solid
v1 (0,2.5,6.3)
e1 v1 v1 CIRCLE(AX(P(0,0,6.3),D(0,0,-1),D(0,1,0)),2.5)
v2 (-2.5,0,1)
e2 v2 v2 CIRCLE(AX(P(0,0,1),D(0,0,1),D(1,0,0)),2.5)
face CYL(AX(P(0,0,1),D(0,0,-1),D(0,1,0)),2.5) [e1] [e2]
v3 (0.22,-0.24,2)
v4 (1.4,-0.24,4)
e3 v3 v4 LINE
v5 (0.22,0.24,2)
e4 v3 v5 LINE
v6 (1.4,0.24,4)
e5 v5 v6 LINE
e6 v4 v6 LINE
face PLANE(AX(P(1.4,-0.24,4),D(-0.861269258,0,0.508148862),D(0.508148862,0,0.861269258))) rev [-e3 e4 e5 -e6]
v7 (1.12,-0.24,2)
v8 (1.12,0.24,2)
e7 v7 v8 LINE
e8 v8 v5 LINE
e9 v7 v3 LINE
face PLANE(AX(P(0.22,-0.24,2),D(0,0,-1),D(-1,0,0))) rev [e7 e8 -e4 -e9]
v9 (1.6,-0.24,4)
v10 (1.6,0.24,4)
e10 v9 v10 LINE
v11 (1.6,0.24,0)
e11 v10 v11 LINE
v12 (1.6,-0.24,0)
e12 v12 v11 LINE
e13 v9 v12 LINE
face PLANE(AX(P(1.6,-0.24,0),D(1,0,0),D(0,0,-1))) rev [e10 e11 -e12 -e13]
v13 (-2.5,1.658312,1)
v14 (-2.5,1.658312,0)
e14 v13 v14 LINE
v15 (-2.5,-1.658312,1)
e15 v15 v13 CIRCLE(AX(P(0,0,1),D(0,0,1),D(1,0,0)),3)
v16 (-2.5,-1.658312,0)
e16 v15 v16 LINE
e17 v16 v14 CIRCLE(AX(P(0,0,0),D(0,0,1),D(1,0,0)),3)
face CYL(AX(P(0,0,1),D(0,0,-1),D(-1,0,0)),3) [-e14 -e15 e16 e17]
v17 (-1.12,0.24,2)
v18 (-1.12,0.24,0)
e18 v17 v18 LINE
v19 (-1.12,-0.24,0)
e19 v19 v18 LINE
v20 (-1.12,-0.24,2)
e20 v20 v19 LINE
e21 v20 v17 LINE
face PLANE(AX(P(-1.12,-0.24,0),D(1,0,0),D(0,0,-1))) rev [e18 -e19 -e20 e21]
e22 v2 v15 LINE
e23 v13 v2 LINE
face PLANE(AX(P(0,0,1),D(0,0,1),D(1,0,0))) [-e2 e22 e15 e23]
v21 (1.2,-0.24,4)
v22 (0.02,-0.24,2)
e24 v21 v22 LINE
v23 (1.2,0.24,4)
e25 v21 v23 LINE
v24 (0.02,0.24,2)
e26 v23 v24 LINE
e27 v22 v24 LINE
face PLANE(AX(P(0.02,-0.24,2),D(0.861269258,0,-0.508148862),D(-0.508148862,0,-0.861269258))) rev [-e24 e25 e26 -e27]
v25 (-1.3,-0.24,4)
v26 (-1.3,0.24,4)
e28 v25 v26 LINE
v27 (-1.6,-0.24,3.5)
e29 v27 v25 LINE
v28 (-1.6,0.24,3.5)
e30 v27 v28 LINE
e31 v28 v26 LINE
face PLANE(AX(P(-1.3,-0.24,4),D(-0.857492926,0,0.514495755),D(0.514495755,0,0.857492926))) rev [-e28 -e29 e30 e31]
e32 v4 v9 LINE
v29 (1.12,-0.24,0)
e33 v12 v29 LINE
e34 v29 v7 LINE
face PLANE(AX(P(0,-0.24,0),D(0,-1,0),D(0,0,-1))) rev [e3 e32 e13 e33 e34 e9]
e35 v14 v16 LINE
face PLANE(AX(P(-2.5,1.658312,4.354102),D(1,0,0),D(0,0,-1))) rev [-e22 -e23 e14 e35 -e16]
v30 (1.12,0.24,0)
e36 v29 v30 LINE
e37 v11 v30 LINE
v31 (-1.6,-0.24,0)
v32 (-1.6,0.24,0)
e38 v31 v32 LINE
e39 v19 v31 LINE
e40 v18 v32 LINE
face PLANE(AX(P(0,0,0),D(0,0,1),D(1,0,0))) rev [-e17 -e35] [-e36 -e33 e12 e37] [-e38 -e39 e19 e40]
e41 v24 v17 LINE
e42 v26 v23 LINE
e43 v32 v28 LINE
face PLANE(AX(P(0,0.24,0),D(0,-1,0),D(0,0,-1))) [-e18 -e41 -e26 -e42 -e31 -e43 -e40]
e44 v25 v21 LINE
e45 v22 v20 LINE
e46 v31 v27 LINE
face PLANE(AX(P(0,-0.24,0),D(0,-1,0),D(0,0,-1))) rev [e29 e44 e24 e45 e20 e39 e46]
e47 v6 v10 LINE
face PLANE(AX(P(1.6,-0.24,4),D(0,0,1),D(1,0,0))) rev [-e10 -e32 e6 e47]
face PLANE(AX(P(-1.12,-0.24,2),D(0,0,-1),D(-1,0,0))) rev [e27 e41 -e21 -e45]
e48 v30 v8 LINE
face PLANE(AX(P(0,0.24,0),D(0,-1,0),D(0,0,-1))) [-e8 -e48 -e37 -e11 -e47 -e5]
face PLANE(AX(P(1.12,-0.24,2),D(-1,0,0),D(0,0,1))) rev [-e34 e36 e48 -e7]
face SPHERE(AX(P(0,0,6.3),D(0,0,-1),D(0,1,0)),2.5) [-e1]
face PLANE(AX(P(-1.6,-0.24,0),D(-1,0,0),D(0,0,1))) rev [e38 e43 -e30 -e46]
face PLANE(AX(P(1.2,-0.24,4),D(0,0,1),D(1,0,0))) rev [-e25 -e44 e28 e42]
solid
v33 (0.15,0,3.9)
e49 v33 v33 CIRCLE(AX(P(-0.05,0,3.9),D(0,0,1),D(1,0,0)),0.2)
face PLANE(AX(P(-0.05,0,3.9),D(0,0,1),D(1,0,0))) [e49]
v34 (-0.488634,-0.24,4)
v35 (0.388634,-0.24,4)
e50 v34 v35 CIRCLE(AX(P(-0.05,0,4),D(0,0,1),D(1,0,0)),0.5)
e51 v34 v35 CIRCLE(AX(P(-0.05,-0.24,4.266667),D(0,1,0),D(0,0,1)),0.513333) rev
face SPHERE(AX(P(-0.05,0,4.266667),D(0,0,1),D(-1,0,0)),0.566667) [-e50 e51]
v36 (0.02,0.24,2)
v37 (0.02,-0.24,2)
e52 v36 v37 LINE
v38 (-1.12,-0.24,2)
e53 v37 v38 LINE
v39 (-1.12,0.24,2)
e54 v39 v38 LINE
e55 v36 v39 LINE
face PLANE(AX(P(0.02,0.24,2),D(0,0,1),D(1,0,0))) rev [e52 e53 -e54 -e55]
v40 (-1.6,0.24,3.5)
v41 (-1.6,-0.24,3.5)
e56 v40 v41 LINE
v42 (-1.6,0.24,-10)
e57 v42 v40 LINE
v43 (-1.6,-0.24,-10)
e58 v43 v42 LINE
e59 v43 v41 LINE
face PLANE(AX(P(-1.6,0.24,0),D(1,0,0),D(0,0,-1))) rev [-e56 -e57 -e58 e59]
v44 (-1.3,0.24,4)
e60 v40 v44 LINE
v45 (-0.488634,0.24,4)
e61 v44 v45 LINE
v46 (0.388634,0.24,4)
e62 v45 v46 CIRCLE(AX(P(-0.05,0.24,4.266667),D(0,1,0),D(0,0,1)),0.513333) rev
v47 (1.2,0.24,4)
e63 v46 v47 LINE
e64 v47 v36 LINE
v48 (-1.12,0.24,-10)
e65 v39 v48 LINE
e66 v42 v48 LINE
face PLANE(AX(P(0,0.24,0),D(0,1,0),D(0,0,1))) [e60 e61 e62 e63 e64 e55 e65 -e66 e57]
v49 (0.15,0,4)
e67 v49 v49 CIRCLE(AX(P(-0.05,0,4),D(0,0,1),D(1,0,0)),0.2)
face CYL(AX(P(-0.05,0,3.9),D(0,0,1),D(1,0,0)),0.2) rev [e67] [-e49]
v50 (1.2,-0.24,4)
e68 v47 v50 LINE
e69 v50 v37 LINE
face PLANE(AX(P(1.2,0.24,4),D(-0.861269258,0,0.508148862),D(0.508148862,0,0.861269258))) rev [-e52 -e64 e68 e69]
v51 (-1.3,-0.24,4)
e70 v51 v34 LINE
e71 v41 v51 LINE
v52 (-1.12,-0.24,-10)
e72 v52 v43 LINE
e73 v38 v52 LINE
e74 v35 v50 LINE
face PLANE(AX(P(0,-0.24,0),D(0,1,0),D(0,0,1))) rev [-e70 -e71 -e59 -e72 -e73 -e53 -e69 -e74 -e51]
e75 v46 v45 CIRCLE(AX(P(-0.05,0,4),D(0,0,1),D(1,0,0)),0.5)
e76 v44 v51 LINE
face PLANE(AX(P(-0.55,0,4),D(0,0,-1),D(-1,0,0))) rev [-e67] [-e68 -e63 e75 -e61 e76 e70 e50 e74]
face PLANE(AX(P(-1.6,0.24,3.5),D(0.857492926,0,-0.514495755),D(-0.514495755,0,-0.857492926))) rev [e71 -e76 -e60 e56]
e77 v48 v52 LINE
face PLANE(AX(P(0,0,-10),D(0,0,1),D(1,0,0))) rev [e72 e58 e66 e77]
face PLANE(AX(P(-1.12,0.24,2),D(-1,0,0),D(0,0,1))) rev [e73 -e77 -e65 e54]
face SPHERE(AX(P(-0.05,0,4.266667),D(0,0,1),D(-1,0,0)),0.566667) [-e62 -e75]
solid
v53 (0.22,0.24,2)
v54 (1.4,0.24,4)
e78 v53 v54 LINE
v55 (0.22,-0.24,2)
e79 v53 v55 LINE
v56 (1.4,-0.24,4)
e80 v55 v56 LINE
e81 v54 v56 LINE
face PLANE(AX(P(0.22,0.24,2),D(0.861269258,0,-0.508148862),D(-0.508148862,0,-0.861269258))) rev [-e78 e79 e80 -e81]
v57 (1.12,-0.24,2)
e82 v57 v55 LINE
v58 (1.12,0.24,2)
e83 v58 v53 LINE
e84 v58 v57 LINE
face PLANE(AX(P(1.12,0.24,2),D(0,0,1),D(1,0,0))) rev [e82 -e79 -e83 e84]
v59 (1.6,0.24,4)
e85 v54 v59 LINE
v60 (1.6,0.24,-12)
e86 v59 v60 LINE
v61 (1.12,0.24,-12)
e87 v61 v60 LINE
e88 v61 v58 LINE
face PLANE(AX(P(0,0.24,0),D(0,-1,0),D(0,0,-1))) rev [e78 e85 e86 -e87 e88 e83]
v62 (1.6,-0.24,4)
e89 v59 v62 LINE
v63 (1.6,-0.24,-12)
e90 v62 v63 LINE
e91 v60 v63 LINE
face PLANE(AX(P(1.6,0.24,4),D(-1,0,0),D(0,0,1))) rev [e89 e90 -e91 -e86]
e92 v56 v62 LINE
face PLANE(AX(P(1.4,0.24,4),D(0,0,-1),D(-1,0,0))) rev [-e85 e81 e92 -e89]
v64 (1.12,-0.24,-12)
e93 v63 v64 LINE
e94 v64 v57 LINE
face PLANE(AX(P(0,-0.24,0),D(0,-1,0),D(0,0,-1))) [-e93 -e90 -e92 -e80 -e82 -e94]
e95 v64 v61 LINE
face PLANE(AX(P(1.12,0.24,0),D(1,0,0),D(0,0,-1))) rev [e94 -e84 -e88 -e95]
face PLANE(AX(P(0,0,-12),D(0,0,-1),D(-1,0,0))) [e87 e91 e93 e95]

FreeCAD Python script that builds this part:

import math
import FreeCAD as App
import Part
import Sketcher

V = App.Vector


def add_polygon(sketch, points):
    """Adds a closed chain of lines whose ends are joined by coincident constraints."""
    first, n = sketch.GeometryCount, len(points)
    for a, b in zip(points, points[1:] + points[:1]):
        sketch.addGeometry(Part.LineSegment(App.Vector(*a, 0), App.Vector(*b, 0)), False)
    for i in range(n):
        sketch.addConstraint(Sketcher.Constraint("Coincident", first + i, 2, first + (i + 1) % n, 1))

doc = App.newDocument("Part")
body = doc.addObject("PartDesign::Body", "Body")

sketch1 = doc.addObject("Sketcher::SketchObject", "Sketch")
body.addObject(sketch1)
sketch1.AttachmentSupport = (doc.XY_Plane, [""])
sketch1.MapMode = "FlatFace"
sketch1.addGeometry(Part.Circle(V(0, 0, 0), V(0, 0, 1), 3), False)
sketch1.addConstraint([
    Sketcher.Constraint("Coincident", 0, 3, -1, 1),
    Sketcher.Constraint("Diameter", 0, 6.0),
])
pad1 = doc.addObject("PartDesign::Pad", "Pad")
body.addObject(pad1)
pad1.Profile = sketch1
pad1.Length = 1

sketch2 = doc.addObject("Sketcher::SketchObject", "Sketch001")
body.addObject(sketch2)
sketch2.AttachmentSupport = (doc.YZ_Plane, [""])
sketch2.MapMode = "FlatFace"
sketch2.addGeometry([
    Part.LineSegment(V(0, 8.8, 0), V(0, 1, 0)),
    Part.LineSegment(V(0, 1, 0), V(2.5, 1, 0)),
    Part.LineSegment(V(2.5, 1, 0), V(2.5, 6.3, 0)),
    Part.ArcOfCircle(Part.Circle(V(0, 6.3, 0), V(0, 0, 1), 2.5), math.radians(0), math.radians(90)),
], False)
sketch2.addConstraint([
    Sketcher.Constraint("Coincident", 0, 2, 1, 1),
    Sketcher.Constraint("Coincident", 1, 2, 2, 1),
    Sketcher.Constraint("Tangent", 2, 2, 3, 1),
    Sketcher.Constraint("Coincident", 3, 2, 0, 1),
    Sketcher.Constraint("Vertical", 0),
    Sketcher.Constraint("Horizontal", 1),
    Sketcher.Constraint("Vertical", 2),
    Sketcher.Constraint("PointOnObject", 3, 3, -2),
    Sketcher.Constraint("PointOnObject", 0, 2, -2),
    Sketcher.Constraint("Radius", 3, 2.5),
    Sketcher.Constraint("DistanceY", 0, 2, 0, 1, 7.8),
    Sketcher.Constraint("DistanceY", -1, 1, 0, 2, 1.0),
])
revolution = doc.addObject("PartDesign::Revolution", "Revolution")
body.addObject(revolution)
revolution.Profile = sketch2
revolution.ReferenceAxis = (sketch2, ["V_Axis"])
revolution.Angle = 360

sketch3 = doc.addObject("Sketcher::SketchObject", "Sketch002")
body.addObject(sketch3)
sketch3.AttachmentSupport = (doc.XY_Plane, [""])
sketch3.MapMode = "FlatFace"
sketch3.addGeometry([
    Part.LineSegment(V(-2.5, 1.658312, 0), V(-2.5, -1.658312, 0)),
    Part.ArcOfCircle(Part.Circle(V(0, 0, 0), V(0, 0, 1), 3), math.radians(146.44269), math.radians(213.55731)),
], False)
sketch3.addConstraint([
    Sketcher.Constraint("Coincident", 0, 1, 1, 1),
    Sketcher.Constraint("Coincident", 1, 2, 0, 2),
    Sketcher.Constraint("Vertical", 0),
    Sketcher.Constraint("Coincident", 1, 3, -1, 1),
    Sketcher.Constraint("Radius", 1, 3.0),
    Sketcher.Constraint("DistanceX", 0, 1, -1, 1, 2.5),
])
pocket1 = doc.addObject("PartDesign::Pocket", "Pocket")
body.addObject(pocket1)
pocket1.Profile = sketch3
pocket1.Length = 1
pocket1.Reversed = True

sketch4 = doc.addObject("Sketcher::SketchObject", "Sketch003")
body.addObject(sketch4)
sketch4.AttachmentSupport = (doc.XZ_Plane, [""])
sketch4.MapMode = "FlatFace"
add_polygon(sketch4, [(-1.6, 0), (-1.6, 3.5), (-1.3, 4), (1.2, 4), (0.02, 2), (-1.12, 2), (-1.12, 0)])
add_polygon(sketch4, [(1.6, 4), (1.6, 0), (1.12, 0), (1.12, 2), (0.22, 2), (1.4, 4)])
sketch4.addConstraint([
    Sketcher.Constraint("Vertical", 0),
    Sketcher.Constraint("Horizontal", 2),
    Sketcher.Constraint("Horizontal", 4),
    Sketcher.Constraint("Vertical", 5),
    Sketcher.Constraint("Horizontal", 6),
    Sketcher.Constraint("Vertical", 7),
    Sketcher.Constraint("Horizontal", 8),
    Sketcher.Constraint("Vertical", 9),
    Sketcher.Constraint("Horizontal", 10),
    Sketcher.Constraint("Horizontal", 12),
    Sketcher.Constraint("Symmetric", 6, 2, 7, 2, -1, 1),
    Sketcher.Constraint("Symmetric", 5, 2, 8, 2, -2),
    Sketcher.Constraint("Parallel", 3, 11),
    Sketcher.Constraint("Horizontal", 4, 2, 9, 2),
    Sketcher.Constraint("Horizontal", 2, 2, 11, 2),
    Sketcher.Constraint("DistanceY", 5, 2, 5, 1, 2.0),
    Sketcher.Constraint("DistanceY", 7, 2, 7, 1, 4.0),
    Sketcher.Constraint("DistanceX", 2, 1, 2, 2, 2.5),
    Sketcher.Constraint("DistanceX", 10, 2, 10, 1, 0.9),
    Sketcher.Constraint("DistanceX", 12, 1, 12, 2, 0.2),
    Sketcher.Constraint("DistanceY", 0, 1, 0, 2, 3.5),
    Sketcher.Constraint("DistanceX", 4, 2, 4, 1, 1.14),
    Sketcher.Constraint("DistanceX", 6, 2, 6, 1, 0.48),
    Sketcher.Constraint("DistanceX", 0, 2, -1, 1, 1.6),
])
pocket2 = doc.addObject("PartDesign::Pocket", "Pocket001")
body.addObject(pocket2)
pocket2.Profile = sketch4
pocket2.Length = 0.48
pocket2.Midplane = True
body2 = doc.addObject("PartDesign::Body", "Body001")

sketch5 = doc.addObject("Sketcher::SketchObject", "Sketch004")
body2.addObject(sketch5)
sketch5.AttachmentSupport = (doc.getObject("XY_Plane001"), [""])
sketch5.MapMode = "FlatFace"
add_polygon(sketch5, [(1.6, 0.24), (1.6, -0.24), (1.12, -0.24), (1.12, 0.24)])
sketch5.addConstraint([
    Sketcher.Constraint("Vertical", 0),
    Sketcher.Constraint("Horizontal", 1),
    Sketcher.Constraint("Vertical", 2),
    Sketcher.Constraint("Horizontal", 3),
    Sketcher.Constraint("Equal", 3, 0),
    Sketcher.Constraint("DistanceX", 1, 2, 1, 1, 0.48),
    Sketcher.Constraint("DistanceX", -1, 1, 0, 2, 1.6),
    Sketcher.Constraint("DistanceY", 0, 2, -1, 1, 0.24),
])
pad2 = doc.addObject("PartDesign::Pad", "Pad001")
body2.addObject(pad2)
pad2.Profile = sketch5
pad2.Length = 10
pad2.Reversed = True
body3 = doc.addObject("PartDesign::Body", "Body002")

sketch6 = doc.addObject("Sketcher::SketchObject", "Sketch005")
body3.addObject(sketch6)
sketch6.AttachmentSupport = (doc.getObject("XY_Plane002"), [""])
sketch6.MapMode = "FlatFace"
add_polygon(sketch6, [(-1.12, 0.24), (-1.12, -0.24), (-1.6, -0.24), (-1.6, 0.24)])
sketch6.addConstraint([
    Sketcher.Constraint("Vertical", 0),
    Sketcher.Constraint("Horizontal", 1),
    Sketcher.Constraint("Vertical", 2),
    Sketcher.Constraint("Horizontal", 3),
    Sketcher.Constraint("Equal", 3, 0),
    Sketcher.Constraint("DistanceX", 1, 2, 1, 1, 0.48),
    Sketcher.Constraint("DistanceX", 1, 2, -1, 1, 1.6),
    Sketcher.Constraint("DistanceY", 0, 2, -1, 1, 0.24),
])
pad3 = doc.addObject("PartDesign::Pad", "Pad002")
body3.addObject(pad3)
pad3.Profile = sketch6
pad3.Length = 10
pad3.Reversed = True
body4 = doc.addObject("PartDesign::Body", "Body003")

sketch7 = doc.addObject("Sketcher::SketchObject", "Sketch006")
body4.addObject(sketch7)
sketch7.AttachmentSupport = (doc.getObject("XY_Plane003"), [""])
sketch7.MapMode = "FlatFace"
sketch7.AttachmentOffset = App.Placement(V(0, 0, -10), App.Rotation())
add_polygon(sketch7, [(1.6, 0.24), (1.6, -0.24), (1.12, -0.24), (1.12, 0.24)])
sketch7.addConstraint([
    Sketcher.Constraint("Vertical", 0),
    Sketcher.Constraint("Horizontal", 1),
    Sketcher.Constraint("Vertical", 2),
    Sketcher.Constraint("Horizontal", 3),
    Sketcher.Constraint("Equal", 3, 0),
    Sketcher.Constraint("DistanceX", 1, 2, 1, 1, 0.48),
    Sketcher.Constraint("DistanceX", -1, 1, 0, 2, 1.6),
    Sketcher.Constraint("DistanceY", 0, 2, -1, 1, 0.24),
])
pad4 = doc.addObject("PartDesign::Pad", "Pad003")
body4.addObject(pad4)
pad4.Profile = sketch7
pad4.Length = 2
pad4.Reversed = True
body5 = doc.addObject("PartDesign::Body", "Body004")

sketch8 = doc.addObject("Sketcher::SketchObject", "Sketch007")
body5.addObject(sketch8)
sketch8.AttachmentSupport = (doc.getObject("XZ_Plane004"), [""])
sketch8.MapMode = "FlatFace"
add_polygon(sketch8, [(-1.3, 4), (1.2, 4), (0.02, 2), (-1.12, 2), (-1.12, 0), (-1.6, 0), (-1.6, 3.5)])
sketch8.addConstraint([
    Sketcher.Constraint("Horizontal", 0),
    Sketcher.Constraint("Horizontal", 2),
    Sketcher.Constraint("Vertical", 3),
    Sketcher.Constraint("Horizontal", 4),
    Sketcher.Constraint("Vertical", 5),
    Sketcher.Constraint("PointOnObject", 3, 2, -1),
    Sketcher.Constraint("DistanceY", 3, 2, 3, 1, 2.0),
    Sketcher.Constraint("DistanceX", 0, 1, 0, 2, 2.5),
    Sketcher.Constraint("DistanceY", 5, 1, 5, 2, 3.5),
    Sketcher.Constraint("DistanceY", -1, 1, 0, 2, 4.0),
    Sketcher.Constraint("DistanceX", 2, 2, 2, 1, 1.14),
    Sketcher.Constraint("DistanceX", 4, 2, 4, 1, 0.48),
    Sketcher.Constraint("DistanceX", -1, 1, 0, 2, 1.2),
    Sketcher.Constraint("DistanceX", 4, 2, -1, 1, 1.6),
])
pad5 = doc.addObject("PartDesign::Pad", "Pad004")
body5.addObject(pad5)
pad5.Profile = sketch8
pad5.Length = 0.48
pad5.Midplane = True
doc.recompute()

boolean = doc.addObject("PartDesign::Boolean", "Boolean")
body5.addObject(boolean)
boolean.Type = "Fuse"
boolean.addObjects([body3])

sketch9 = doc.addObject("Sketcher::SketchObject", "Sketch008")
body5.addObject(sketch9)
sketch9.AttachmentSupport = (doc.getObject("XZ_Plane004"), [""])
sketch9.MapMode = "FlatFace"
sketch9.addGeometry([
    Part.LineSegment(V(-0.05, 4, 0), V(-0.05, 3.7, 0)),
    Part.ArcOfCircle(Part.Circle(V(-0.05, 4.266667, 0), V(0, 0, 1), 0.566667), math.radians(-151.927513), math.radians(-90)),
    Part.LineSegment(V(-0.55, 4, 0), V(-0.05, 4, 0)),
], False)
sketch9.addGeometry(Part.LineSegment(V(-0.05, 4.266667, 0), V(-0.05, 3.7, 0)), True)
sketch9.addConstraint([
    Sketcher.Constraint("Coincident", 0, 2, 1, 2),
    Sketcher.Constraint("Coincident", 1, 1, 2, 1),
    Sketcher.Constraint("Coincident", 2, 2, 0, 1),
    Sketcher.Constraint("Vertical", 0),
    Sketcher.Constraint("Horizontal", 2),
    Sketcher.Constraint("Vertical", 3),
    Sketcher.Constraint("Coincident", 3, 1, 1, 3),
    Sketcher.Constraint("Coincident", 3, 2, 0, 2),
    Sketcher.Constraint("DistanceX", 2, 1, 2, 2, 0.5),
    Sketcher.Constraint("DistanceY", 0, 2, 0, 1, 0.3),
    Sketcher.Constraint("DistanceY", -1, 1, 1, 1, 4.0),
    Sketcher.Constraint("DistanceX", 1, 3, -1, 1, 0.05),
])
groove = doc.addObject("PartDesign::Groove", "Groove")
body5.addObject(groove)
groove.Profile = sketch9
groove.ReferenceAxis = (sketch9, ["Axis0"])
groove.Angle = 360
body6 = doc.addObject("PartDesign::Body", "Body005")
body6.AllowCompound = True

sketch10 = doc.addObject("Sketcher::SketchObject", "Sketch009")
body6.addObject(sketch10)
sketch10.AttachmentSupport = (doc.getObject("XZ_Plane005"), [""])
sketch10.MapMode = "FlatFace"
add_polygon(sketch10, [(0.22, 2), (1.4, 4), (1.6, 4), (1.6, 0), (1.12, 0), (1.12, 2)])
sketch10.addConstraint([
    Sketcher.Constraint("Horizontal", 1),
    Sketcher.Constraint("Vertical", 2),
    Sketcher.Constraint("Horizontal", 3),
    Sketcher.Constraint("Vertical", 4),
    Sketcher.Constraint("Horizontal", 5),
    Sketcher.Constraint("PointOnObject", 2, 2, -1),
    Sketcher.Constraint("DistanceY", 2, 2, 2, 1, 4.0),
    Sketcher.Constraint("DistanceY", 4, 1, 4, 2, 2.0),
    Sketcher.Constraint("DistanceX", 1, 1, 1, 2, 0.2),
    Sketcher.Constraint("DistanceX", 5, 2, 5, 1, 0.9),
    Sketcher.Constraint("DistanceX", 3, 2, 3, 1, 0.48),
    Sketcher.Constraint("DistanceX", -1, 1, 0, 2, 1.4),
])
pad6 = doc.addObject("PartDesign::Pad", "Pad005")
body6.addObject(pad6)
pad6.Profile = sketch10
pad6.Length = 0.48
pad6.Midplane = True
doc.recompute()

boolean2 = doc.addObject("PartDesign::Boolean", "Boolean001")
body6.addObject(boolean2)
boolean2.Type = "Fuse"
boolean2.addObjects([body4])
doc.recompute()

boolean3 = doc.addObject("PartDesign::Boolean", "Boolean002")
body6.addObject(boolean3)
boolean3.Type = "Fuse"
boolean3.addObjects([body2])
body7 = doc.addObject("PartDesign::Body", "Body006")

sketch11 = doc.addObject("Sketcher::SketchObject", "Sketch010")
body7.addObject(sketch11)
sketch11.AttachmentSupport = (doc.getObject("XZ_Plane006"), [""])
sketch11.MapMode = "FlatFace"
sketch11.addGeometry([
    Part.LineSegment(V(-0.55, 4, 0), V(-0.05, 4, 0)),
    Part.LineSegment(V(-0.05, 4, 0), V(-0.05, 3.7, 0)),
    Part.ArcOfCircle(Part.Circle(V(-0.05, 4.266667, 0), V(0, 0, 1), 0.566667), math.radians(-151.927513), math.radians(-90)),
], False)
sketch11.addGeometry(Part.LineSegment(V(-0.05, 4.266667, 0), V(-0.05, 3.7, 0)), True)
sketch11.addConstraint([
    Sketcher.Constraint("Coincident", 0, 2, 1, 1),
    Sketcher.Constraint("Coincident", 1, 2, 2, 2),
    Sketcher.Constraint("Coincident", 2, 1, 0, 1),
    Sketcher.Constraint("Horizontal", 0),
    Sketcher.Constraint("Vertical", 1),
    Sketcher.Constraint("Vertical", 3),
    Sketcher.Constraint("Coincident", 3, 1, 2, 3),
    Sketcher.Constraint("Coincident", 3, 2, 1, 2),
    Sketcher.Constraint("DistanceX", 0, 1, 0, 2, 0.5),
    Sketcher.Constraint("DistanceY", 1, 2, 1, 1, 0.3),
    Sketcher.Constraint("DistanceY", -1, 1, 0, 2, 4.0),
    Sketcher.Constraint("DistanceX", 2, 3, -1, 1, 0.05),
])
revolution2 = doc.addObject("PartDesign::Revolution", "Revolution001")
body7.addObject(revolution2)
revolution2.Profile = sketch11
revolution2.ReferenceAxis = (sketch11, ["Axis0"])
revolution2.Angle = 360
doc.recompute()

boolean4 = doc.addObject("PartDesign::Boolean", "Boolean003")
body7.addObject(boolean4)
boolean4.Type = "Fuse"
boolean4.addObjects([body5])

sketch12 = doc.addObject("Sketcher::SketchObject", "Sketch011")
body7.addObject(sketch12)
sketch12.AttachmentSupport = (doc.getObject("XY_Plane006"), [""])
sketch12.MapMode = "FlatFace"
sketch12.AttachmentOffset = App.Placement(V(0, 0, 4), App.Rotation())
sketch12.addGeometry(Part.Circle(V(-0.05, 0, 0), V(0, 0, 1), 0.2), False)
sketch12.addConstraint([
    Sketcher.Constraint("PointOnObject", 0, 3, -1),
    Sketcher.Constraint("Diameter", 0, 0.4),
    Sketcher.Constraint("DistanceX", 0, 3, -1, 1, 0.05),
])
pocket3 = doc.addObject("PartDesign::Pocket", "Pocket002")
body7.addObject(pocket3)
pocket3.Profile = sketch12
pocket3.Length = 0.1

doc.recompute()
